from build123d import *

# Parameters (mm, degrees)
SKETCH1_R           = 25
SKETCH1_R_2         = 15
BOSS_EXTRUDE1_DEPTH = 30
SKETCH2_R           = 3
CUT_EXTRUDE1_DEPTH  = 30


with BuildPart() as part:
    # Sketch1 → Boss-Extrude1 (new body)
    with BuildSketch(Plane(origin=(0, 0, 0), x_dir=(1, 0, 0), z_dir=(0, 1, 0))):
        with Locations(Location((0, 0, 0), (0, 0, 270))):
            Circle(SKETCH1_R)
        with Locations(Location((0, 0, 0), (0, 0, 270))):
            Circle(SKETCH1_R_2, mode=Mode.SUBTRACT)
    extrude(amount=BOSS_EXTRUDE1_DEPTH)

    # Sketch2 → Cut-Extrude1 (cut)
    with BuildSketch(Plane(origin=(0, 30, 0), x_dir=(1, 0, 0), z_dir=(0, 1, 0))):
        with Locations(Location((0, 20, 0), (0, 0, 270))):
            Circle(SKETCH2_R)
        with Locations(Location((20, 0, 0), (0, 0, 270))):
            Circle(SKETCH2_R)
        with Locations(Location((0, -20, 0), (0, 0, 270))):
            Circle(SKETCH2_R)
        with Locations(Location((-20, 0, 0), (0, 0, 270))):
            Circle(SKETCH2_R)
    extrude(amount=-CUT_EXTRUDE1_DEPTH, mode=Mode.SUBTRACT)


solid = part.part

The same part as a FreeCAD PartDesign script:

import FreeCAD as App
import Part
import Sketcher

doc = App.newDocument("Part")
body = doc.addObject("PartDesign::Body", "Body")

# Sketch on XZ plane
sketch1 = doc.addObject("Sketcher::SketchObject", "Sketch")
body.addObject(sketch1)
sketch1.AttachmentSupport = (doc.XZ_Plane, [""])
sketch1.MapMode = "FlatFace"
sketch1.addGeometry([
    Part.Circle(App.Vector(0, 0, 0), App.Vector(0, 0, 1), 25),
    Part.Circle(App.Vector(0, 0, 0), App.Vector(0, 0, 1), 15),
], False)
sketch1.addConstraint([
    Sketcher.Constraint("Coincident", 0, 3, -1, 1),
    Sketcher.Constraint("Coincident", 1, 3, -1, 1),
    Sketcher.Constraint("Diameter", 0, 50.0),
    Sketcher.Constraint("Diameter", 1, 30.0),
])
pad1 = doc.addObject("PartDesign::Pad", "Pad")
body.addObject(pad1)
pad1.Profile = sketch1
pad1.Length = 30
pad1.Reversed = True

# Sketch on XZ plane
sketch2 = doc.addObject("Sketcher::SketchObject", "Sketch001")
body.addObject(sketch2)
sketch2.AttachmentSupport = (doc.XZ_Plane, [""])
sketch2.MapMode = "FlatFace"
sketch2.AttachmentOffset = App.Placement(App.Vector(0, 0, -30), App.Rotation())
sketch2.addGeometry([
    Part.Circle(App.Vector(0, -20, 0), App.Vector(0, 0, 1), 3),
    Part.Circle(App.Vector(20, 0, 0), App.Vector(0, 0, 1), 3),
    Part.Circle(App.Vector(0, 20, 0), App.Vector(0, 0, 1), 3),
    Part.Circle(App.Vector(-20, 0, 0), App.Vector(0, 0, 1), 3),
], False)
sketch2.addConstraint([
    Sketcher.Constraint("Equal", 0, 1),
    Sketcher.Constraint("Equal", 1, 2),
    Sketcher.Constraint("Equal", 2, 3),
    Sketcher.Constraint("Symmetric", 0, 3, 2, 3, -1, 1),
    Sketcher.Constraint("Symmetric", 1, 3, 3, 3, -1, 1),
    Sketcher.Constraint("PointOnObject", 0, 3, -2),
    Sketcher.Constraint("PointOnObject", 1, 3, -1),
    Sketcher.Constraint("Diameter", 0, 6.0),
    Sketcher.Constraint("DistanceY", 0, 3, -1, 1, 20.0),
    Sketcher.Constraint("DistanceX", -1, 1, 1, 3, 20.0),
])
pocket1 = doc.addObject("PartDesign::Pocket", "Pocket")
body.addObject(pocket1)
pocket1.Profile = sketch2
pocket1.Length = 30
pocket1.Reversed = True

doc.recompute()
